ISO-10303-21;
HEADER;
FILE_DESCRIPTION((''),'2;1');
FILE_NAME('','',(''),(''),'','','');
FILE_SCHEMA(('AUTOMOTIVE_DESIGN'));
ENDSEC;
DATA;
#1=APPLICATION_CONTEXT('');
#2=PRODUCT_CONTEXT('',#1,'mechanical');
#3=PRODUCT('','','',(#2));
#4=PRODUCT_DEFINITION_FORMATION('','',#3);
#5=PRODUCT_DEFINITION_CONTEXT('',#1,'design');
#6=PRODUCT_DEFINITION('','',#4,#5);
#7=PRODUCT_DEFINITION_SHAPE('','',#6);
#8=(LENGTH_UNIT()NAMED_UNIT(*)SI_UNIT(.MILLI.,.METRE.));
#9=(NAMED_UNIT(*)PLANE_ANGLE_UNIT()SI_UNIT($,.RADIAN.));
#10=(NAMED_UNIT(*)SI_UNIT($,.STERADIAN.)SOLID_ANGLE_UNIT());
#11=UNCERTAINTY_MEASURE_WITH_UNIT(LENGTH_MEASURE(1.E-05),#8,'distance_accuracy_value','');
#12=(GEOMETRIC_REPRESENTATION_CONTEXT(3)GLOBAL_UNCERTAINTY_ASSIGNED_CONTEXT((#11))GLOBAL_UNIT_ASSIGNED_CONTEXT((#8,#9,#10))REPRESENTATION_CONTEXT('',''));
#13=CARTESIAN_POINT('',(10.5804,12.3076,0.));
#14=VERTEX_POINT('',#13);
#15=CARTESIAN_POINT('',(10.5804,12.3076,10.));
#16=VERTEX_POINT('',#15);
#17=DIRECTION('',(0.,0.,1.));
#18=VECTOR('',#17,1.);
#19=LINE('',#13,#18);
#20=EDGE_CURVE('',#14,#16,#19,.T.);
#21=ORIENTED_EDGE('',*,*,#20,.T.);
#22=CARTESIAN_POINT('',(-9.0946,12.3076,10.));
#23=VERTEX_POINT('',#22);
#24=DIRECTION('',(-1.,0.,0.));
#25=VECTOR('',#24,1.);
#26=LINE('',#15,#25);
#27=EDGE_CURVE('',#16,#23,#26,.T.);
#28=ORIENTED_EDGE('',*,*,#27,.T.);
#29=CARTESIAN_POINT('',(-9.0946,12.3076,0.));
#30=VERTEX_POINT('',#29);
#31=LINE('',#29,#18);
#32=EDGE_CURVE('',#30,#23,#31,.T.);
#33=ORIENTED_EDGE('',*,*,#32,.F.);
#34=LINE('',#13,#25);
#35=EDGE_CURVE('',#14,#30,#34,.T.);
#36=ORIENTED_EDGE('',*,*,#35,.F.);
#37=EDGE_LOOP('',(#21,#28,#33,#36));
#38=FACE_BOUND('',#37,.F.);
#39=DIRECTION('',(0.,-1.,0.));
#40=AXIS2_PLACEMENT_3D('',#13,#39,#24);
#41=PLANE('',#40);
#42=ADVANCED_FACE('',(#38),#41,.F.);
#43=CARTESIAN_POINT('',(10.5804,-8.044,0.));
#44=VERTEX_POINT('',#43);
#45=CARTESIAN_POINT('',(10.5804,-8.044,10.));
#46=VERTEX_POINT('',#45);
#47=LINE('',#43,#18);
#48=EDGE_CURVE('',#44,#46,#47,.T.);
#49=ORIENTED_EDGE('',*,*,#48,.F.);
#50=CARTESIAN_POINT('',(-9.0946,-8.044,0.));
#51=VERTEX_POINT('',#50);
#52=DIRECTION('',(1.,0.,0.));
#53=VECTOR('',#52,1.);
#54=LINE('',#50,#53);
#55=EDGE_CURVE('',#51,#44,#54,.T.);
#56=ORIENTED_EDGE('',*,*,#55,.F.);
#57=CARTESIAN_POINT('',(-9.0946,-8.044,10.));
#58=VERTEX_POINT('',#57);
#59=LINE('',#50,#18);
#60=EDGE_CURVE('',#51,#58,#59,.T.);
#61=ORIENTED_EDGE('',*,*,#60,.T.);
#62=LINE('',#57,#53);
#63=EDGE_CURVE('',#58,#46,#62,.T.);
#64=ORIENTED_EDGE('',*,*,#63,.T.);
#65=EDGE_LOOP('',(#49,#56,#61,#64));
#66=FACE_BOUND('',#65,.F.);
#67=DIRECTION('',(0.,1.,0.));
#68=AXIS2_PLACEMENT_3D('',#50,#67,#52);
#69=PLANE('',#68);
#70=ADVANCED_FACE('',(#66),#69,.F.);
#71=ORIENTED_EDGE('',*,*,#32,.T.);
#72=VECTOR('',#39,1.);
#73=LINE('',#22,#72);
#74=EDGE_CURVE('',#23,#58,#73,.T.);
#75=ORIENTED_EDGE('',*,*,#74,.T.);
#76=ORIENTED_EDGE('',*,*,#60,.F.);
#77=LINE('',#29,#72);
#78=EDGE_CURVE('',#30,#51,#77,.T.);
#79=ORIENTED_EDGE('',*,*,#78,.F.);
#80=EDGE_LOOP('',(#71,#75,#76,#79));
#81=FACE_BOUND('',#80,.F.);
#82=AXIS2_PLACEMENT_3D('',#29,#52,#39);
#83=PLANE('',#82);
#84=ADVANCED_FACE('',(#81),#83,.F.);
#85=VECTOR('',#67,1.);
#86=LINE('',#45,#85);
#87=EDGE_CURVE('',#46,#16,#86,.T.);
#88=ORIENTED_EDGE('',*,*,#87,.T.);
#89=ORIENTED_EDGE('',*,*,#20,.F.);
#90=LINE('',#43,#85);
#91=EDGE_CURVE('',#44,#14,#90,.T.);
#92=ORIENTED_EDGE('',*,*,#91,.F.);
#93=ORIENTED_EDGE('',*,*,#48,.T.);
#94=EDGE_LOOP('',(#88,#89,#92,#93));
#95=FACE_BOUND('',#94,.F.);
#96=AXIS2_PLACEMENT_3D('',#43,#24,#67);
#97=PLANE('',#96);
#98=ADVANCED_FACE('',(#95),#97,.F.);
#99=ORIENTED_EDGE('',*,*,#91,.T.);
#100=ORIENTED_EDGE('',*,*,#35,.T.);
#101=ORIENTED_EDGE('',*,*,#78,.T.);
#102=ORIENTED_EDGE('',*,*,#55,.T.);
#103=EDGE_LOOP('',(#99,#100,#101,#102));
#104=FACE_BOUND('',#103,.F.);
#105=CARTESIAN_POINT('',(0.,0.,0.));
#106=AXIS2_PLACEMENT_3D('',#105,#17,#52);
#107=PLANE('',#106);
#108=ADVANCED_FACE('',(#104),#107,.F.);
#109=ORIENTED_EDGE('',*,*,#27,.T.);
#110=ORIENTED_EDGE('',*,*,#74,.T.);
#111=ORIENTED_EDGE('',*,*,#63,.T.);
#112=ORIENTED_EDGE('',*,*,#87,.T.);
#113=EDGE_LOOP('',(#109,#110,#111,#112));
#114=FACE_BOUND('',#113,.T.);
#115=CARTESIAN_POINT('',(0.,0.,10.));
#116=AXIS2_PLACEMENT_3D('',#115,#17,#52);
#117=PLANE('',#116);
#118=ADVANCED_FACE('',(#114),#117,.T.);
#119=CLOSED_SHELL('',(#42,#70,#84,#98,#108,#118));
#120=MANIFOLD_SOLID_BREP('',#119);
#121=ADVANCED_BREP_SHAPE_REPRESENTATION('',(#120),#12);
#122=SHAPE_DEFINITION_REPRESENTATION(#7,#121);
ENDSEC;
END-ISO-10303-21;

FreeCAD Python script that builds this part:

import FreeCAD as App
import Part
import Sketcher

V = App.Vector

doc = App.newDocument("Part")
body = doc.addObject("PartDesign::Body", "Body")

sketch1 = body.newObject("Sketcher::SketchObject", "Sketch")
sketch1.AttachmentSupport = (doc.getObject("XY_Plane"), [""])
sketch1.MapMode = "FlatFace"
sketch1.addGeometry([
    Part.LineSegment(V(-9.0946, 12.3076, 0), V(-9.0946, -8.044, 0)),
    Part.LineSegment(V(-9.0946, -8.044, 0), V(10.5804, -8.044, 0)),
    Part.LineSegment(V(10.5804, -8.044, 0), V(10.5804, 12.3076, 0)),
    Part.LineSegment(V(10.5804, 12.3076, 0), V(-9.0946, 12.3076, 0)),
], False)
sketch1.addConstraint([
    Sketcher.Constraint("Coincident", 0, 2, 1, 1),
    Sketcher.Constraint("Coincident", 1, 2, 2, 1),
    Sketcher.Constraint("Coincident", 2, 2, 3, 1),
    Sketcher.Constraint("Coincident", 3, 2, 0, 1),
    Sketcher.Constraint("Vertical", 0),
    Sketcher.Constraint("Horizontal", 1),
    Sketcher.Constraint("Vertical", 2),
    Sketcher.Constraint("Horizontal", 3),
    Sketcher.Constraint("DistanceX", 1, 1, 1, 2, 19.675),
    Sketcher.Constraint("DistanceY", 0, 2, 0, 1, 20.3516),
    Sketcher.Constraint("DistanceY", 0, 2, -1, 1, 8.044),
    Sketcher.Constraint("DistanceX", 0, 2, -1, 1, 9.0946),
])
pad1 = body.newObject("PartDesign::Pad", "Pad")
pad1.Profile = sketch1
pad1.Length = 10

doc.recompute()
